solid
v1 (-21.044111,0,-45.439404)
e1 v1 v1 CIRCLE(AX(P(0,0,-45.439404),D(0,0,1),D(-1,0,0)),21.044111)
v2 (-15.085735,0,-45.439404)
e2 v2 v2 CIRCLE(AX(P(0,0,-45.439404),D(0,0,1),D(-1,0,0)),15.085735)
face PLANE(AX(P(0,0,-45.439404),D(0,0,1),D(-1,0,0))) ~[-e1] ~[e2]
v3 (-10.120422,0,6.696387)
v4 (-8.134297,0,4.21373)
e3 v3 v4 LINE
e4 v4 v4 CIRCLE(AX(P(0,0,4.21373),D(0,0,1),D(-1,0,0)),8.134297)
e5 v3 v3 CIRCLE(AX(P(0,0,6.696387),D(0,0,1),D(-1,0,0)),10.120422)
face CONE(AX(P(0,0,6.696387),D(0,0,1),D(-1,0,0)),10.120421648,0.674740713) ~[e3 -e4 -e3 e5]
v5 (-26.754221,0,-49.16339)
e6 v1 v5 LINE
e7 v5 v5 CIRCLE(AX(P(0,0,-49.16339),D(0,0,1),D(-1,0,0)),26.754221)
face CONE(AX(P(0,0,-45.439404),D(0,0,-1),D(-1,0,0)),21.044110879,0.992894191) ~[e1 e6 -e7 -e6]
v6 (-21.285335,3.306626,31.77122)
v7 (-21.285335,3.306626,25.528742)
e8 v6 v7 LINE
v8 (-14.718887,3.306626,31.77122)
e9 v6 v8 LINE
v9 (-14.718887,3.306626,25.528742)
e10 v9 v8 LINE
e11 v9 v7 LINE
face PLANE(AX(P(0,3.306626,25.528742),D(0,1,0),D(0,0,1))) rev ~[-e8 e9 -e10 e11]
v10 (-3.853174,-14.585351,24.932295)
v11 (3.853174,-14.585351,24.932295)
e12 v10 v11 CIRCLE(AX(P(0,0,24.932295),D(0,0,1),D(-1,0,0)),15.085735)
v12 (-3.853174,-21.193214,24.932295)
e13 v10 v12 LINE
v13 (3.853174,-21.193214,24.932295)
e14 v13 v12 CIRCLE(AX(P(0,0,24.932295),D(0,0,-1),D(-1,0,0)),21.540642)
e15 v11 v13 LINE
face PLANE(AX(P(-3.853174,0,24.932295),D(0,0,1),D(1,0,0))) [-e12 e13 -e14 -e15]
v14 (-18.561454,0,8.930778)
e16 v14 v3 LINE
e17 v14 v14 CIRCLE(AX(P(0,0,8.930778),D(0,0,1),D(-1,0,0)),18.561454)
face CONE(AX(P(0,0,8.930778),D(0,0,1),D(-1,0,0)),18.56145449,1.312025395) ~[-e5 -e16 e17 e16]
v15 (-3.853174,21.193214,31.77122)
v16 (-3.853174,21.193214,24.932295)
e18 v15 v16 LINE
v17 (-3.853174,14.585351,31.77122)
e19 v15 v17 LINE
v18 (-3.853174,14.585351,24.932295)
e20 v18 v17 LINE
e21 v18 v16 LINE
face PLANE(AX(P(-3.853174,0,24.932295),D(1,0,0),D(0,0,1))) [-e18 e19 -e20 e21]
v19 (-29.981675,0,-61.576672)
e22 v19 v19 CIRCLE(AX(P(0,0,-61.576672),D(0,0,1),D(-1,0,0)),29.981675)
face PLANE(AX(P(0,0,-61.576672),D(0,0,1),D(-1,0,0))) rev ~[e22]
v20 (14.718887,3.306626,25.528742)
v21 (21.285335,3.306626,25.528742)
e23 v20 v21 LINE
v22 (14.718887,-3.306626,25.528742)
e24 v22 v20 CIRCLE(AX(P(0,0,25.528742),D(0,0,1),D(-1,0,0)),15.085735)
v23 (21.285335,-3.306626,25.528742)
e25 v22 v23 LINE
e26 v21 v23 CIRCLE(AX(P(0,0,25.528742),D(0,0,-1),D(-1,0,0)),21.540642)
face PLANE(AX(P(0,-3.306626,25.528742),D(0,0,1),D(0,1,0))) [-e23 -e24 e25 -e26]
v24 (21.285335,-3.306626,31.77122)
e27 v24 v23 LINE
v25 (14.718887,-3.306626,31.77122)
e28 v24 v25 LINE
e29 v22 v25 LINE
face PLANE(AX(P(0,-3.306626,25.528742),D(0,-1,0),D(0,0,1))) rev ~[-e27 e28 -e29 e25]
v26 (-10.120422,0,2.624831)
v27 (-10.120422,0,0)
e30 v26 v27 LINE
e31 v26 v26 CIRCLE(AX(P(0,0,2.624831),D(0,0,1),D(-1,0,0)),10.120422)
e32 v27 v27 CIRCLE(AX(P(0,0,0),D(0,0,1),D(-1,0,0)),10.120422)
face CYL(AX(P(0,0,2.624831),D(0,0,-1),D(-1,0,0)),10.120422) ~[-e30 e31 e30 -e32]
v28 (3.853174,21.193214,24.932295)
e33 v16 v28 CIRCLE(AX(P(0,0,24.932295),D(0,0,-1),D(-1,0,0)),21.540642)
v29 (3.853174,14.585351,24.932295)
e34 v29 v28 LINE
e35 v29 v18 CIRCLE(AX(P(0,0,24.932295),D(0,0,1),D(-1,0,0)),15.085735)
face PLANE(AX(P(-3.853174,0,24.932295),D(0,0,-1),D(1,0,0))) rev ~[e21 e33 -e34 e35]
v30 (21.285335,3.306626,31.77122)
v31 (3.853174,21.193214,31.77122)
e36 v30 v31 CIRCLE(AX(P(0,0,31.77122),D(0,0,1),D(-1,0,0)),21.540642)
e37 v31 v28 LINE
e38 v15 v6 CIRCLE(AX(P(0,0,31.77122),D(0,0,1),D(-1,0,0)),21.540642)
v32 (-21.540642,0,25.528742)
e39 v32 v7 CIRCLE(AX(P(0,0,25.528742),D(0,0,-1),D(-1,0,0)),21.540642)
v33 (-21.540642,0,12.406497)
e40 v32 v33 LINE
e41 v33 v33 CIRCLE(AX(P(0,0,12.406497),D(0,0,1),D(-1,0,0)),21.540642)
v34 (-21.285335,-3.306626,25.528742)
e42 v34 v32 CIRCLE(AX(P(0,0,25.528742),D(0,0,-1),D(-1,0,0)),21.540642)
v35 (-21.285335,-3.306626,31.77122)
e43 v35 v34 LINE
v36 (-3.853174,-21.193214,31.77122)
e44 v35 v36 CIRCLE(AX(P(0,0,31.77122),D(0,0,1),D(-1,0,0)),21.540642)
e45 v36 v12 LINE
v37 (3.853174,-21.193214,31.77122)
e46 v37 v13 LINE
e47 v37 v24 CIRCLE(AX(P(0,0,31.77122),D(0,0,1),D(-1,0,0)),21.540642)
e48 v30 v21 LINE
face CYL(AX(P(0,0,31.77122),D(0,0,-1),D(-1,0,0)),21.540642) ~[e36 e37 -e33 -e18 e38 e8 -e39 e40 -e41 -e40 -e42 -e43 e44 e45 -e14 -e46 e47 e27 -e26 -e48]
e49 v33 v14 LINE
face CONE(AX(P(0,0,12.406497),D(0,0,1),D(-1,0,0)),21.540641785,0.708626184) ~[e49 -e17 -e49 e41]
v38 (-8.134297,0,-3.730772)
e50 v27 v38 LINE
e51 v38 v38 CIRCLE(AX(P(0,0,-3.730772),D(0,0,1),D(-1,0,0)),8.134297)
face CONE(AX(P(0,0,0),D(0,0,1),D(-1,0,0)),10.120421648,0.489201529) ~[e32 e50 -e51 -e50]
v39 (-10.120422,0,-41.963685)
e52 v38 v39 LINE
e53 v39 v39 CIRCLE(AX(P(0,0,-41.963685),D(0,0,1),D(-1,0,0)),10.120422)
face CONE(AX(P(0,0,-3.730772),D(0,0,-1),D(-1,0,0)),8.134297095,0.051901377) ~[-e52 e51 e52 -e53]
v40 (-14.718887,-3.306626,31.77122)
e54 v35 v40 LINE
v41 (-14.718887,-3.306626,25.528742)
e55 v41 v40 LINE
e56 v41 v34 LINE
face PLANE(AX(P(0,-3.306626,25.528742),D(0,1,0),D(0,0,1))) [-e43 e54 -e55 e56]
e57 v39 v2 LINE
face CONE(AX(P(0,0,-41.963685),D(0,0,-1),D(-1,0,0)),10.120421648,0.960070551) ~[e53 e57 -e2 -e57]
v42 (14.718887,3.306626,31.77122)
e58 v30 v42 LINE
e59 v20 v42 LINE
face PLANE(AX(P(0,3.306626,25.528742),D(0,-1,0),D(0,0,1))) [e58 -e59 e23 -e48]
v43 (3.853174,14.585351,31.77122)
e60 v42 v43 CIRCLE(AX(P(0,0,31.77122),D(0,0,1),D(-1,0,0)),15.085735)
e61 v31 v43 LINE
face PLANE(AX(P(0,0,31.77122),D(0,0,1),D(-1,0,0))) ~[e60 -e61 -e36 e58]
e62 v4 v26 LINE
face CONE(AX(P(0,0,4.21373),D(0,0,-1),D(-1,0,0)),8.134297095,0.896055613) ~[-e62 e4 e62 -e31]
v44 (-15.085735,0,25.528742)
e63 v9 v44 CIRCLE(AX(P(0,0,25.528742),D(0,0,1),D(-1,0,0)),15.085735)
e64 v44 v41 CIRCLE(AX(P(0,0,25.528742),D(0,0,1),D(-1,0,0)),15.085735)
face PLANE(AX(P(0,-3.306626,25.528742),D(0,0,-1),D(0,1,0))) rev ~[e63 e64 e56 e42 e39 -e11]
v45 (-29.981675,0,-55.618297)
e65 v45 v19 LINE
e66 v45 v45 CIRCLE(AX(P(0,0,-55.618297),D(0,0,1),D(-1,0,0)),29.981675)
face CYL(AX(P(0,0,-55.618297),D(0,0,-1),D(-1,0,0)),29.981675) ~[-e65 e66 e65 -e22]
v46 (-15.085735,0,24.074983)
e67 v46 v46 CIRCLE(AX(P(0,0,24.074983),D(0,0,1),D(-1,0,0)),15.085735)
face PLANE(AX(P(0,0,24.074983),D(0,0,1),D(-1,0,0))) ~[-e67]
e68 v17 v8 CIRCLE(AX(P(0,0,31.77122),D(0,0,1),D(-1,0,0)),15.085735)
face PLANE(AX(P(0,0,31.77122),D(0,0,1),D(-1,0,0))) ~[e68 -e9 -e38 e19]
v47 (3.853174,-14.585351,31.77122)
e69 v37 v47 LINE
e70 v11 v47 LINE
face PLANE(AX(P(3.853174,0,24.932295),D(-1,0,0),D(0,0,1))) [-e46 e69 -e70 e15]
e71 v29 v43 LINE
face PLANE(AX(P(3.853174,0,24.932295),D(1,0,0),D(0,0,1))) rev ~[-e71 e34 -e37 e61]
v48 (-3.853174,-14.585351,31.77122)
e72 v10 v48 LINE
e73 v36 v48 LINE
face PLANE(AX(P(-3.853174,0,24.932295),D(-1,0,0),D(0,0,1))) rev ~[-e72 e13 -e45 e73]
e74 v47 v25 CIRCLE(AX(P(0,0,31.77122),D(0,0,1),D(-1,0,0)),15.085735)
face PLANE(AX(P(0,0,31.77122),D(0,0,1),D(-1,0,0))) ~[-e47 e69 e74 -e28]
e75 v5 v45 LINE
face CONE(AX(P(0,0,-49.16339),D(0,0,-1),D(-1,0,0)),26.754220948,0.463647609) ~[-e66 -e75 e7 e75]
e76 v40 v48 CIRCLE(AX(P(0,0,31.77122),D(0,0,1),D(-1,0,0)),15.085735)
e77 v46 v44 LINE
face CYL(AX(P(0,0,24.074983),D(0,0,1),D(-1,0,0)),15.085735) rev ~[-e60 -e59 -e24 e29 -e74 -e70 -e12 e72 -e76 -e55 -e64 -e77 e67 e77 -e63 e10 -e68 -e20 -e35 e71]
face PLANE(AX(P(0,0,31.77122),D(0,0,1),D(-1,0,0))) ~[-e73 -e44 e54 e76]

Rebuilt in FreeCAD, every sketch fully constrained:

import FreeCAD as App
import Part
import Sketcher
from FreeCAD import Vector
Q = App.Units.Quantity


def add_polygon(sketch, points):
    """Adds a closed chain of lines whose ends are joined by coincident constraints."""
    first, n = sketch.GeometryCount, len(points)
    for a, b in zip(points, points[1:] + points[:1]):
        sketch.addGeometry(Part.LineSegment(App.Vector(*a, 0), App.Vector(*b, 0)), False)
    for i in range(n):
        sketch.addConstraint(Sketcher.Constraint("Coincident", first + i, 2, first + (i + 1) % n, 1))

doc = App.newDocument("Part")
body = doc.addObject("PartDesign::Body", "Body")

# Sketch on XZ plane
sketch1 = doc.addObject("Sketcher::SketchObject", "Sketch")
body.addObject(sketch1)
sketch1.AttachmentSupport = (doc.XZ_Plane, [""])
sketch1.MapMode = "FlatFace"
add_polygon(sketch1, [(0, -61.6), (0, 24.1), (-15.1, 24.1), (-15.1, 31.8), (-21.5, 31.8), (-21.5, 12.4), (-18.6, 8.9), (-10.1, 6.7), (-8.1, 4.2), (-10.1, 2.6), (-10.1, 0), (-8.1, -3.7), (-10.1, -42), (-15.1, -45.4), (-21, -45.4), (-26.8, -49.2), (-30, -55.6), (-30, -61.6)])  # lines 0-17
sketch1.addConstraint(Sketcher.Constraint("Vertical", 0))
sketch1.addConstraint(Sketcher.Constraint("Horizontal", 1))
sketch1.addConstraint(Sketcher.Constraint("Vertical", 2))
sketch1.addConstraint(Sketcher.Constraint("Horizontal", 3))
sketch1.addConstraint(Sketcher.Constraint("Vertical", 4))
sketch1.addConstraint(Sketcher.Constraint("Vertical", 9))
sketch1.addConstraint(Sketcher.Constraint("Horizontal", 13))
sketch1.addConstraint(Sketcher.Constraint("Vertical", 16))
sketch1.addConstraint(Sketcher.Constraint("Horizontal", 17))
sketch1.addConstraint(Sketcher.Constraint("PointOnObject", 0, 2, -2))
sketch1.addConstraint(Sketcher.Constraint("PointOnObject", 9, 2, -1))
sketch1.addConstraint(Sketcher.Constraint("Perpendicular", 7, 8))
sketch1.addConstraint(Sketcher.Constraint("Vertical", 6, 2, 8, 2))
sketch1.addConstraint(Sketcher.Constraint("Vertical", 7, 2, 10, 2))
sketch1.addConstraint(Sketcher.Constraint("Vertical", 9, 2, 11, 2))
sketch1.addConstraint(Sketcher.Constraint("Vertical", 2, 2, 12, 2))
sketch1.addConstraint(Sketcher.Constraint("Equal", 13, 16))
sketch1.addConstraint(Sketcher.Constraint("DistanceY", 9, 2, 9, 1, Q("2.624831 mm")))
sketch1.addConstraint(Sketcher.Constraint("DistanceY", 8, 2, 7, 2, Q("1.588899 mm")))
sketch1.addConstraint(Sketcher.Constraint("DistanceY", 10, 2, 7, 2, Q("7.944501 mm")))
sketch1.addConstraint(Sketcher.Constraint("DistanceX", 14, 2, 11, 2, Q("16.633799 mm")))
sketch1.addConstraint(Sketcher.Constraint("Distance", 7, Q("3.179351 mm")))
sketch1.addConstraint(Sketcher.Constraint("DistanceX", 1, 2, 1, 1, Q("15.085735 mm")))
sketch1.addConstraint(Sketcher.Constraint("DistanceX", 3, 2, 3, 1, Q("6.454906 mm")))
sketch1.addConstraint(Sketcher.Constraint("DistanceX", 13, 2, 13, 1, Q("5.958376 mm")))
sketch1.addConstraint(Sketcher.Constraint("DistanceX", 17, 1, 17, 2, Q("29.981675 mm")))
sketch1.addConstraint(Sketcher.Constraint("DistanceY", 0, 1, 0, 2, Q("85.651655 mm")))
sketch1.addConstraint(Sketcher.Constraint("DistanceY", 2, 1, 2, 2, Q("7.696237 mm")))
sketch1.addConstraint(Sketcher.Constraint("DistanceY", 4, 2, 4, 1, Q("19.364723 mm")))
sketch1.addConstraint(Sketcher.Constraint("DistanceY", -1, 1, 2, 2, Q("31.77122 mm")))
sketch1.addConstraint(Sketcher.Constraint("DistanceY", -1, 1, 5, 2, Q("8.930778 mm")))
sketch1.addConstraint(Sketcher.Constraint("DistanceX", 6, 2, -1, 1, Q("10.120422 mm")))
sketch1.addConstraint(Sketcher.Constraint("DistanceY", 14, 2, -1, 1, Q("49.16339 mm")))
sketch1.addConstraint(Sketcher.Constraint("DistanceX", 5, 2, 1, 2, Q("3.475719 mm")))
sketch1.addConstraint(Sketcher.Constraint("DistanceY", 12, 2, 11, 2, Q("3.475718 mm")))
sketch1.addConstraint(Sketcher.Constraint("DistanceY", 12, 2, 10, 2, Q("41.708632 mm")))
revolution = doc.addObject("PartDesign::Revolution", "Revolution")
body.addObject(revolution)
revolution.Profile = sketch1
revolution.ReferenceAxis = (sketch1, ["V_Axis"])
revolution.Angle = 360

# Sketch on XZ plane
sketch2 = doc.addObject("Sketcher::SketchObject", "Sketch001")
body.addObject(sketch2)
sketch2.AttachmentSupport = (doc.XZ_Plane, [""])
sketch2.MapMode = "FlatFace"
add_polygon(sketch2, [(-4, 39), (-4, 25), (4, 25), (4, 39)])  # lines 0-3
sketch2.addConstraint(Sketcher.Constraint("Vertical", 0))
sketch2.addConstraint(Sketcher.Constraint("Horizontal", 1))
sketch2.addConstraint(Sketcher.Constraint("Vertical", 2))
sketch2.addConstraint(Sketcher.Constraint("Horizontal", 3))
sketch2.addConstraint(Sketcher.Constraint("DistanceX", 1, 1, 1, 2, Q("7.706347 mm")))
sketch2.addConstraint(Sketcher.Constraint("DistanceY", 0, 2, 0, 1, Q("14.506064 mm")))
sketch2.addConstraint(Sketcher.Constraint("DistanceY", -1, 1, 2, 2, Q("39.438359 mm")))
sketch2.addConstraint(Sketcher.Constraint("DistanceX", 0, 2, -1, 1, Q("3.853174 mm")))
pocket1 = doc.addObject("PartDesign::Pocket", "Pocket")
body.addObject(pocket1)
pocket1.Profile = sketch2
pocket1.Type = "ThroughAll"
pocket1.Midplane = True

# Sketch on YZ plane
sketch3 = doc.addObject("Sketcher::SketchObject", "Sketch002")
body.addObject(sketch3)
sketch3.AttachmentSupport = (doc.YZ_Plane, [""])
sketch3.MapMode = "FlatFace"
add_polygon(sketch3, [(-3, 38), (-3, 26), (3, 26), (3, 38)])  # lines 0-3
sketch3.addConstraint(Sketcher.Constraint("Vertical", 0))
sketch3.addConstraint(Sketcher.Constraint("Horizontal", 1))
sketch3.addConstraint(Sketcher.Constraint("Vertical", 2))
sketch3.addConstraint(Sketcher.Constraint("Horizontal", 3))
sketch3.addConstraint(Sketcher.Constraint("DistanceX", 1, 1, 1, 2, Q("6.613253 mm")))
sketch3.addConstraint(Sketcher.Constraint("DistanceY", 0, 2, 0, 1, Q("12.692798 mm")))
sketch3.addConstraint(Sketcher.Constraint("DistanceY", -1, 1, 2, 2, Q("38.22154 mm")))
sketch3.addConstraint(Sketcher.Constraint("DistanceX", 0, 2, -1, 1, Q("3.306626 mm")))
pocket2 = doc.addObject("PartDesign::Pocket", "Pocket001")
body.addObject(pocket2)
pocket2.Profile = sketch3
pocket2.Type = "ThroughAll"
pocket2.Midplane = True

doc.recompute()
